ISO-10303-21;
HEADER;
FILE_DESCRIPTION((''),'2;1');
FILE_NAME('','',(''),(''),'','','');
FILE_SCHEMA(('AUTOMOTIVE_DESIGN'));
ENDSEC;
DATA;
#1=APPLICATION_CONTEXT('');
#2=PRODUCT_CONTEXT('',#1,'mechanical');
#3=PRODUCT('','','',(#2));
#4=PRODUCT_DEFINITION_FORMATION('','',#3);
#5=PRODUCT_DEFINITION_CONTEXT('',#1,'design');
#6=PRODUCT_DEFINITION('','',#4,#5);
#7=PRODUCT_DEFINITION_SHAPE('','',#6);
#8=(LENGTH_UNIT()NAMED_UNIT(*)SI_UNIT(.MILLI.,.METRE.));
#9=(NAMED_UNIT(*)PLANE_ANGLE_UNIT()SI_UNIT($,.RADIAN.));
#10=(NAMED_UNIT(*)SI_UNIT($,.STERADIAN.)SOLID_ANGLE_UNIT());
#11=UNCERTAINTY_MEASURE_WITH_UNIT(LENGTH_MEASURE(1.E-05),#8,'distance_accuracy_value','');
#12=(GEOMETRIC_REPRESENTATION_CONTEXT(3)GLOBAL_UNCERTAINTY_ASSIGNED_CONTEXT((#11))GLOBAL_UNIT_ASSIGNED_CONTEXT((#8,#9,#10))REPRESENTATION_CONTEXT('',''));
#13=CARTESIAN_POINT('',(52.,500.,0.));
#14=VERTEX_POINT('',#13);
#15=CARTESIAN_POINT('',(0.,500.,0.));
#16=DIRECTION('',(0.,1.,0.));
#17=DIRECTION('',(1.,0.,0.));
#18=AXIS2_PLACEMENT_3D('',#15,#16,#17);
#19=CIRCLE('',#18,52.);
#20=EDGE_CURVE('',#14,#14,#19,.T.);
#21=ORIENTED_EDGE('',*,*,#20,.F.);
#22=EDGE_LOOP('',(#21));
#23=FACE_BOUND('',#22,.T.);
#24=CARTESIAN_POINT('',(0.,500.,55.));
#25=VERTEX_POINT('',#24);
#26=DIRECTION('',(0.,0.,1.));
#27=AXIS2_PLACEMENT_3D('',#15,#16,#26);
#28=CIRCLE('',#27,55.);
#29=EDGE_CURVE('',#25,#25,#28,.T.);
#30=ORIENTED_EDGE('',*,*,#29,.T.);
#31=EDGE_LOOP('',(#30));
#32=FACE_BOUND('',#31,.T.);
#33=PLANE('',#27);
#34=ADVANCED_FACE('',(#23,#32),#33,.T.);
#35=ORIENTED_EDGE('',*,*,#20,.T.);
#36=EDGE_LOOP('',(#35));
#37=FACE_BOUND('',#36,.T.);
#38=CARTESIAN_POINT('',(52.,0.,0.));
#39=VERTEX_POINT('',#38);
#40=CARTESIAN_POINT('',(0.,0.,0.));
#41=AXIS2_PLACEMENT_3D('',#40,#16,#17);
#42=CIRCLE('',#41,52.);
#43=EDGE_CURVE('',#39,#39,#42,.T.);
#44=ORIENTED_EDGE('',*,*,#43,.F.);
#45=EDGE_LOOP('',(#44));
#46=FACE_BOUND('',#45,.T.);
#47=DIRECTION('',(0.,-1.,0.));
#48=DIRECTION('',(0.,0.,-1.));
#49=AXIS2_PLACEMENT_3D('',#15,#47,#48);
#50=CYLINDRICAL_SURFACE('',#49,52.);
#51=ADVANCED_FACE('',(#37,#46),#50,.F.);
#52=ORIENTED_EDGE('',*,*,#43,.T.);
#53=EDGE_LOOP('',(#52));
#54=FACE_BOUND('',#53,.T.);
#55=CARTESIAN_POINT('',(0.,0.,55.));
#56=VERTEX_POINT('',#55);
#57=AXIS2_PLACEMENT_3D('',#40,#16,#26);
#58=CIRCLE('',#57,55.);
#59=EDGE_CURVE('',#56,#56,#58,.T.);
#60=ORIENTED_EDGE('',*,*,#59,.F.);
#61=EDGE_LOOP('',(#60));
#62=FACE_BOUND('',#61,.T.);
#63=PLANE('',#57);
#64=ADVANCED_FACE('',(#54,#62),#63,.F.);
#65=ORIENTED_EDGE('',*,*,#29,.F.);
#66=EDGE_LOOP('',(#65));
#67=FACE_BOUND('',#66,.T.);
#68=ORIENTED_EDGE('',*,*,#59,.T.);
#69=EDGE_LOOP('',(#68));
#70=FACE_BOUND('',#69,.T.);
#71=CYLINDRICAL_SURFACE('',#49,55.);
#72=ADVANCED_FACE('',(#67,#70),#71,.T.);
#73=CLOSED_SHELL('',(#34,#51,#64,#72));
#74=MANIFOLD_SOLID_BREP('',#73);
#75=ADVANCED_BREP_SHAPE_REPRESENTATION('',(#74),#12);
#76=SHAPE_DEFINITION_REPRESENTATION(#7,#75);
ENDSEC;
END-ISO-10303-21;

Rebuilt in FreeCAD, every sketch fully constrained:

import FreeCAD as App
import Part
import Sketcher
from FreeCAD import Vector
Q = App.Units.Quantity

doc = App.newDocument("Part")
body = doc.addObject("PartDesign::Body", "Body")

sketch1 = body.newObject("Sketcher::SketchObject", "Sketch")
sketch1.AttachmentSupport = (doc.getObject("XZ_Plane"), [""])
sketch1.MapMode = "FlatFace"
sketch1.addGeometry([
    Part.Circle(Vector(0, 0, 0), Vector(0, 0, 1), 55),
    Part.Circle(Vector(0, 0, 0), Vector(0, 0, 1), 52),
], False)
sketch1.addConstraint([
    Sketcher.Constraint("Coincident", 0, 3, -1, 1),
    Sketcher.Constraint("Coincident", 1, 3, -1, 1),
    Sketcher.Constraint("Diameter", 0, Q("110 mm")),
    Sketcher.Constraint("Diameter", 1, Q("104 mm")),
])
pad1 = body.newObject("PartDesign::Pad", "Pad")
pad1.Profile = sketch1
pad1.Length = 500
pad1.Reversed = True

doc.recompute()
